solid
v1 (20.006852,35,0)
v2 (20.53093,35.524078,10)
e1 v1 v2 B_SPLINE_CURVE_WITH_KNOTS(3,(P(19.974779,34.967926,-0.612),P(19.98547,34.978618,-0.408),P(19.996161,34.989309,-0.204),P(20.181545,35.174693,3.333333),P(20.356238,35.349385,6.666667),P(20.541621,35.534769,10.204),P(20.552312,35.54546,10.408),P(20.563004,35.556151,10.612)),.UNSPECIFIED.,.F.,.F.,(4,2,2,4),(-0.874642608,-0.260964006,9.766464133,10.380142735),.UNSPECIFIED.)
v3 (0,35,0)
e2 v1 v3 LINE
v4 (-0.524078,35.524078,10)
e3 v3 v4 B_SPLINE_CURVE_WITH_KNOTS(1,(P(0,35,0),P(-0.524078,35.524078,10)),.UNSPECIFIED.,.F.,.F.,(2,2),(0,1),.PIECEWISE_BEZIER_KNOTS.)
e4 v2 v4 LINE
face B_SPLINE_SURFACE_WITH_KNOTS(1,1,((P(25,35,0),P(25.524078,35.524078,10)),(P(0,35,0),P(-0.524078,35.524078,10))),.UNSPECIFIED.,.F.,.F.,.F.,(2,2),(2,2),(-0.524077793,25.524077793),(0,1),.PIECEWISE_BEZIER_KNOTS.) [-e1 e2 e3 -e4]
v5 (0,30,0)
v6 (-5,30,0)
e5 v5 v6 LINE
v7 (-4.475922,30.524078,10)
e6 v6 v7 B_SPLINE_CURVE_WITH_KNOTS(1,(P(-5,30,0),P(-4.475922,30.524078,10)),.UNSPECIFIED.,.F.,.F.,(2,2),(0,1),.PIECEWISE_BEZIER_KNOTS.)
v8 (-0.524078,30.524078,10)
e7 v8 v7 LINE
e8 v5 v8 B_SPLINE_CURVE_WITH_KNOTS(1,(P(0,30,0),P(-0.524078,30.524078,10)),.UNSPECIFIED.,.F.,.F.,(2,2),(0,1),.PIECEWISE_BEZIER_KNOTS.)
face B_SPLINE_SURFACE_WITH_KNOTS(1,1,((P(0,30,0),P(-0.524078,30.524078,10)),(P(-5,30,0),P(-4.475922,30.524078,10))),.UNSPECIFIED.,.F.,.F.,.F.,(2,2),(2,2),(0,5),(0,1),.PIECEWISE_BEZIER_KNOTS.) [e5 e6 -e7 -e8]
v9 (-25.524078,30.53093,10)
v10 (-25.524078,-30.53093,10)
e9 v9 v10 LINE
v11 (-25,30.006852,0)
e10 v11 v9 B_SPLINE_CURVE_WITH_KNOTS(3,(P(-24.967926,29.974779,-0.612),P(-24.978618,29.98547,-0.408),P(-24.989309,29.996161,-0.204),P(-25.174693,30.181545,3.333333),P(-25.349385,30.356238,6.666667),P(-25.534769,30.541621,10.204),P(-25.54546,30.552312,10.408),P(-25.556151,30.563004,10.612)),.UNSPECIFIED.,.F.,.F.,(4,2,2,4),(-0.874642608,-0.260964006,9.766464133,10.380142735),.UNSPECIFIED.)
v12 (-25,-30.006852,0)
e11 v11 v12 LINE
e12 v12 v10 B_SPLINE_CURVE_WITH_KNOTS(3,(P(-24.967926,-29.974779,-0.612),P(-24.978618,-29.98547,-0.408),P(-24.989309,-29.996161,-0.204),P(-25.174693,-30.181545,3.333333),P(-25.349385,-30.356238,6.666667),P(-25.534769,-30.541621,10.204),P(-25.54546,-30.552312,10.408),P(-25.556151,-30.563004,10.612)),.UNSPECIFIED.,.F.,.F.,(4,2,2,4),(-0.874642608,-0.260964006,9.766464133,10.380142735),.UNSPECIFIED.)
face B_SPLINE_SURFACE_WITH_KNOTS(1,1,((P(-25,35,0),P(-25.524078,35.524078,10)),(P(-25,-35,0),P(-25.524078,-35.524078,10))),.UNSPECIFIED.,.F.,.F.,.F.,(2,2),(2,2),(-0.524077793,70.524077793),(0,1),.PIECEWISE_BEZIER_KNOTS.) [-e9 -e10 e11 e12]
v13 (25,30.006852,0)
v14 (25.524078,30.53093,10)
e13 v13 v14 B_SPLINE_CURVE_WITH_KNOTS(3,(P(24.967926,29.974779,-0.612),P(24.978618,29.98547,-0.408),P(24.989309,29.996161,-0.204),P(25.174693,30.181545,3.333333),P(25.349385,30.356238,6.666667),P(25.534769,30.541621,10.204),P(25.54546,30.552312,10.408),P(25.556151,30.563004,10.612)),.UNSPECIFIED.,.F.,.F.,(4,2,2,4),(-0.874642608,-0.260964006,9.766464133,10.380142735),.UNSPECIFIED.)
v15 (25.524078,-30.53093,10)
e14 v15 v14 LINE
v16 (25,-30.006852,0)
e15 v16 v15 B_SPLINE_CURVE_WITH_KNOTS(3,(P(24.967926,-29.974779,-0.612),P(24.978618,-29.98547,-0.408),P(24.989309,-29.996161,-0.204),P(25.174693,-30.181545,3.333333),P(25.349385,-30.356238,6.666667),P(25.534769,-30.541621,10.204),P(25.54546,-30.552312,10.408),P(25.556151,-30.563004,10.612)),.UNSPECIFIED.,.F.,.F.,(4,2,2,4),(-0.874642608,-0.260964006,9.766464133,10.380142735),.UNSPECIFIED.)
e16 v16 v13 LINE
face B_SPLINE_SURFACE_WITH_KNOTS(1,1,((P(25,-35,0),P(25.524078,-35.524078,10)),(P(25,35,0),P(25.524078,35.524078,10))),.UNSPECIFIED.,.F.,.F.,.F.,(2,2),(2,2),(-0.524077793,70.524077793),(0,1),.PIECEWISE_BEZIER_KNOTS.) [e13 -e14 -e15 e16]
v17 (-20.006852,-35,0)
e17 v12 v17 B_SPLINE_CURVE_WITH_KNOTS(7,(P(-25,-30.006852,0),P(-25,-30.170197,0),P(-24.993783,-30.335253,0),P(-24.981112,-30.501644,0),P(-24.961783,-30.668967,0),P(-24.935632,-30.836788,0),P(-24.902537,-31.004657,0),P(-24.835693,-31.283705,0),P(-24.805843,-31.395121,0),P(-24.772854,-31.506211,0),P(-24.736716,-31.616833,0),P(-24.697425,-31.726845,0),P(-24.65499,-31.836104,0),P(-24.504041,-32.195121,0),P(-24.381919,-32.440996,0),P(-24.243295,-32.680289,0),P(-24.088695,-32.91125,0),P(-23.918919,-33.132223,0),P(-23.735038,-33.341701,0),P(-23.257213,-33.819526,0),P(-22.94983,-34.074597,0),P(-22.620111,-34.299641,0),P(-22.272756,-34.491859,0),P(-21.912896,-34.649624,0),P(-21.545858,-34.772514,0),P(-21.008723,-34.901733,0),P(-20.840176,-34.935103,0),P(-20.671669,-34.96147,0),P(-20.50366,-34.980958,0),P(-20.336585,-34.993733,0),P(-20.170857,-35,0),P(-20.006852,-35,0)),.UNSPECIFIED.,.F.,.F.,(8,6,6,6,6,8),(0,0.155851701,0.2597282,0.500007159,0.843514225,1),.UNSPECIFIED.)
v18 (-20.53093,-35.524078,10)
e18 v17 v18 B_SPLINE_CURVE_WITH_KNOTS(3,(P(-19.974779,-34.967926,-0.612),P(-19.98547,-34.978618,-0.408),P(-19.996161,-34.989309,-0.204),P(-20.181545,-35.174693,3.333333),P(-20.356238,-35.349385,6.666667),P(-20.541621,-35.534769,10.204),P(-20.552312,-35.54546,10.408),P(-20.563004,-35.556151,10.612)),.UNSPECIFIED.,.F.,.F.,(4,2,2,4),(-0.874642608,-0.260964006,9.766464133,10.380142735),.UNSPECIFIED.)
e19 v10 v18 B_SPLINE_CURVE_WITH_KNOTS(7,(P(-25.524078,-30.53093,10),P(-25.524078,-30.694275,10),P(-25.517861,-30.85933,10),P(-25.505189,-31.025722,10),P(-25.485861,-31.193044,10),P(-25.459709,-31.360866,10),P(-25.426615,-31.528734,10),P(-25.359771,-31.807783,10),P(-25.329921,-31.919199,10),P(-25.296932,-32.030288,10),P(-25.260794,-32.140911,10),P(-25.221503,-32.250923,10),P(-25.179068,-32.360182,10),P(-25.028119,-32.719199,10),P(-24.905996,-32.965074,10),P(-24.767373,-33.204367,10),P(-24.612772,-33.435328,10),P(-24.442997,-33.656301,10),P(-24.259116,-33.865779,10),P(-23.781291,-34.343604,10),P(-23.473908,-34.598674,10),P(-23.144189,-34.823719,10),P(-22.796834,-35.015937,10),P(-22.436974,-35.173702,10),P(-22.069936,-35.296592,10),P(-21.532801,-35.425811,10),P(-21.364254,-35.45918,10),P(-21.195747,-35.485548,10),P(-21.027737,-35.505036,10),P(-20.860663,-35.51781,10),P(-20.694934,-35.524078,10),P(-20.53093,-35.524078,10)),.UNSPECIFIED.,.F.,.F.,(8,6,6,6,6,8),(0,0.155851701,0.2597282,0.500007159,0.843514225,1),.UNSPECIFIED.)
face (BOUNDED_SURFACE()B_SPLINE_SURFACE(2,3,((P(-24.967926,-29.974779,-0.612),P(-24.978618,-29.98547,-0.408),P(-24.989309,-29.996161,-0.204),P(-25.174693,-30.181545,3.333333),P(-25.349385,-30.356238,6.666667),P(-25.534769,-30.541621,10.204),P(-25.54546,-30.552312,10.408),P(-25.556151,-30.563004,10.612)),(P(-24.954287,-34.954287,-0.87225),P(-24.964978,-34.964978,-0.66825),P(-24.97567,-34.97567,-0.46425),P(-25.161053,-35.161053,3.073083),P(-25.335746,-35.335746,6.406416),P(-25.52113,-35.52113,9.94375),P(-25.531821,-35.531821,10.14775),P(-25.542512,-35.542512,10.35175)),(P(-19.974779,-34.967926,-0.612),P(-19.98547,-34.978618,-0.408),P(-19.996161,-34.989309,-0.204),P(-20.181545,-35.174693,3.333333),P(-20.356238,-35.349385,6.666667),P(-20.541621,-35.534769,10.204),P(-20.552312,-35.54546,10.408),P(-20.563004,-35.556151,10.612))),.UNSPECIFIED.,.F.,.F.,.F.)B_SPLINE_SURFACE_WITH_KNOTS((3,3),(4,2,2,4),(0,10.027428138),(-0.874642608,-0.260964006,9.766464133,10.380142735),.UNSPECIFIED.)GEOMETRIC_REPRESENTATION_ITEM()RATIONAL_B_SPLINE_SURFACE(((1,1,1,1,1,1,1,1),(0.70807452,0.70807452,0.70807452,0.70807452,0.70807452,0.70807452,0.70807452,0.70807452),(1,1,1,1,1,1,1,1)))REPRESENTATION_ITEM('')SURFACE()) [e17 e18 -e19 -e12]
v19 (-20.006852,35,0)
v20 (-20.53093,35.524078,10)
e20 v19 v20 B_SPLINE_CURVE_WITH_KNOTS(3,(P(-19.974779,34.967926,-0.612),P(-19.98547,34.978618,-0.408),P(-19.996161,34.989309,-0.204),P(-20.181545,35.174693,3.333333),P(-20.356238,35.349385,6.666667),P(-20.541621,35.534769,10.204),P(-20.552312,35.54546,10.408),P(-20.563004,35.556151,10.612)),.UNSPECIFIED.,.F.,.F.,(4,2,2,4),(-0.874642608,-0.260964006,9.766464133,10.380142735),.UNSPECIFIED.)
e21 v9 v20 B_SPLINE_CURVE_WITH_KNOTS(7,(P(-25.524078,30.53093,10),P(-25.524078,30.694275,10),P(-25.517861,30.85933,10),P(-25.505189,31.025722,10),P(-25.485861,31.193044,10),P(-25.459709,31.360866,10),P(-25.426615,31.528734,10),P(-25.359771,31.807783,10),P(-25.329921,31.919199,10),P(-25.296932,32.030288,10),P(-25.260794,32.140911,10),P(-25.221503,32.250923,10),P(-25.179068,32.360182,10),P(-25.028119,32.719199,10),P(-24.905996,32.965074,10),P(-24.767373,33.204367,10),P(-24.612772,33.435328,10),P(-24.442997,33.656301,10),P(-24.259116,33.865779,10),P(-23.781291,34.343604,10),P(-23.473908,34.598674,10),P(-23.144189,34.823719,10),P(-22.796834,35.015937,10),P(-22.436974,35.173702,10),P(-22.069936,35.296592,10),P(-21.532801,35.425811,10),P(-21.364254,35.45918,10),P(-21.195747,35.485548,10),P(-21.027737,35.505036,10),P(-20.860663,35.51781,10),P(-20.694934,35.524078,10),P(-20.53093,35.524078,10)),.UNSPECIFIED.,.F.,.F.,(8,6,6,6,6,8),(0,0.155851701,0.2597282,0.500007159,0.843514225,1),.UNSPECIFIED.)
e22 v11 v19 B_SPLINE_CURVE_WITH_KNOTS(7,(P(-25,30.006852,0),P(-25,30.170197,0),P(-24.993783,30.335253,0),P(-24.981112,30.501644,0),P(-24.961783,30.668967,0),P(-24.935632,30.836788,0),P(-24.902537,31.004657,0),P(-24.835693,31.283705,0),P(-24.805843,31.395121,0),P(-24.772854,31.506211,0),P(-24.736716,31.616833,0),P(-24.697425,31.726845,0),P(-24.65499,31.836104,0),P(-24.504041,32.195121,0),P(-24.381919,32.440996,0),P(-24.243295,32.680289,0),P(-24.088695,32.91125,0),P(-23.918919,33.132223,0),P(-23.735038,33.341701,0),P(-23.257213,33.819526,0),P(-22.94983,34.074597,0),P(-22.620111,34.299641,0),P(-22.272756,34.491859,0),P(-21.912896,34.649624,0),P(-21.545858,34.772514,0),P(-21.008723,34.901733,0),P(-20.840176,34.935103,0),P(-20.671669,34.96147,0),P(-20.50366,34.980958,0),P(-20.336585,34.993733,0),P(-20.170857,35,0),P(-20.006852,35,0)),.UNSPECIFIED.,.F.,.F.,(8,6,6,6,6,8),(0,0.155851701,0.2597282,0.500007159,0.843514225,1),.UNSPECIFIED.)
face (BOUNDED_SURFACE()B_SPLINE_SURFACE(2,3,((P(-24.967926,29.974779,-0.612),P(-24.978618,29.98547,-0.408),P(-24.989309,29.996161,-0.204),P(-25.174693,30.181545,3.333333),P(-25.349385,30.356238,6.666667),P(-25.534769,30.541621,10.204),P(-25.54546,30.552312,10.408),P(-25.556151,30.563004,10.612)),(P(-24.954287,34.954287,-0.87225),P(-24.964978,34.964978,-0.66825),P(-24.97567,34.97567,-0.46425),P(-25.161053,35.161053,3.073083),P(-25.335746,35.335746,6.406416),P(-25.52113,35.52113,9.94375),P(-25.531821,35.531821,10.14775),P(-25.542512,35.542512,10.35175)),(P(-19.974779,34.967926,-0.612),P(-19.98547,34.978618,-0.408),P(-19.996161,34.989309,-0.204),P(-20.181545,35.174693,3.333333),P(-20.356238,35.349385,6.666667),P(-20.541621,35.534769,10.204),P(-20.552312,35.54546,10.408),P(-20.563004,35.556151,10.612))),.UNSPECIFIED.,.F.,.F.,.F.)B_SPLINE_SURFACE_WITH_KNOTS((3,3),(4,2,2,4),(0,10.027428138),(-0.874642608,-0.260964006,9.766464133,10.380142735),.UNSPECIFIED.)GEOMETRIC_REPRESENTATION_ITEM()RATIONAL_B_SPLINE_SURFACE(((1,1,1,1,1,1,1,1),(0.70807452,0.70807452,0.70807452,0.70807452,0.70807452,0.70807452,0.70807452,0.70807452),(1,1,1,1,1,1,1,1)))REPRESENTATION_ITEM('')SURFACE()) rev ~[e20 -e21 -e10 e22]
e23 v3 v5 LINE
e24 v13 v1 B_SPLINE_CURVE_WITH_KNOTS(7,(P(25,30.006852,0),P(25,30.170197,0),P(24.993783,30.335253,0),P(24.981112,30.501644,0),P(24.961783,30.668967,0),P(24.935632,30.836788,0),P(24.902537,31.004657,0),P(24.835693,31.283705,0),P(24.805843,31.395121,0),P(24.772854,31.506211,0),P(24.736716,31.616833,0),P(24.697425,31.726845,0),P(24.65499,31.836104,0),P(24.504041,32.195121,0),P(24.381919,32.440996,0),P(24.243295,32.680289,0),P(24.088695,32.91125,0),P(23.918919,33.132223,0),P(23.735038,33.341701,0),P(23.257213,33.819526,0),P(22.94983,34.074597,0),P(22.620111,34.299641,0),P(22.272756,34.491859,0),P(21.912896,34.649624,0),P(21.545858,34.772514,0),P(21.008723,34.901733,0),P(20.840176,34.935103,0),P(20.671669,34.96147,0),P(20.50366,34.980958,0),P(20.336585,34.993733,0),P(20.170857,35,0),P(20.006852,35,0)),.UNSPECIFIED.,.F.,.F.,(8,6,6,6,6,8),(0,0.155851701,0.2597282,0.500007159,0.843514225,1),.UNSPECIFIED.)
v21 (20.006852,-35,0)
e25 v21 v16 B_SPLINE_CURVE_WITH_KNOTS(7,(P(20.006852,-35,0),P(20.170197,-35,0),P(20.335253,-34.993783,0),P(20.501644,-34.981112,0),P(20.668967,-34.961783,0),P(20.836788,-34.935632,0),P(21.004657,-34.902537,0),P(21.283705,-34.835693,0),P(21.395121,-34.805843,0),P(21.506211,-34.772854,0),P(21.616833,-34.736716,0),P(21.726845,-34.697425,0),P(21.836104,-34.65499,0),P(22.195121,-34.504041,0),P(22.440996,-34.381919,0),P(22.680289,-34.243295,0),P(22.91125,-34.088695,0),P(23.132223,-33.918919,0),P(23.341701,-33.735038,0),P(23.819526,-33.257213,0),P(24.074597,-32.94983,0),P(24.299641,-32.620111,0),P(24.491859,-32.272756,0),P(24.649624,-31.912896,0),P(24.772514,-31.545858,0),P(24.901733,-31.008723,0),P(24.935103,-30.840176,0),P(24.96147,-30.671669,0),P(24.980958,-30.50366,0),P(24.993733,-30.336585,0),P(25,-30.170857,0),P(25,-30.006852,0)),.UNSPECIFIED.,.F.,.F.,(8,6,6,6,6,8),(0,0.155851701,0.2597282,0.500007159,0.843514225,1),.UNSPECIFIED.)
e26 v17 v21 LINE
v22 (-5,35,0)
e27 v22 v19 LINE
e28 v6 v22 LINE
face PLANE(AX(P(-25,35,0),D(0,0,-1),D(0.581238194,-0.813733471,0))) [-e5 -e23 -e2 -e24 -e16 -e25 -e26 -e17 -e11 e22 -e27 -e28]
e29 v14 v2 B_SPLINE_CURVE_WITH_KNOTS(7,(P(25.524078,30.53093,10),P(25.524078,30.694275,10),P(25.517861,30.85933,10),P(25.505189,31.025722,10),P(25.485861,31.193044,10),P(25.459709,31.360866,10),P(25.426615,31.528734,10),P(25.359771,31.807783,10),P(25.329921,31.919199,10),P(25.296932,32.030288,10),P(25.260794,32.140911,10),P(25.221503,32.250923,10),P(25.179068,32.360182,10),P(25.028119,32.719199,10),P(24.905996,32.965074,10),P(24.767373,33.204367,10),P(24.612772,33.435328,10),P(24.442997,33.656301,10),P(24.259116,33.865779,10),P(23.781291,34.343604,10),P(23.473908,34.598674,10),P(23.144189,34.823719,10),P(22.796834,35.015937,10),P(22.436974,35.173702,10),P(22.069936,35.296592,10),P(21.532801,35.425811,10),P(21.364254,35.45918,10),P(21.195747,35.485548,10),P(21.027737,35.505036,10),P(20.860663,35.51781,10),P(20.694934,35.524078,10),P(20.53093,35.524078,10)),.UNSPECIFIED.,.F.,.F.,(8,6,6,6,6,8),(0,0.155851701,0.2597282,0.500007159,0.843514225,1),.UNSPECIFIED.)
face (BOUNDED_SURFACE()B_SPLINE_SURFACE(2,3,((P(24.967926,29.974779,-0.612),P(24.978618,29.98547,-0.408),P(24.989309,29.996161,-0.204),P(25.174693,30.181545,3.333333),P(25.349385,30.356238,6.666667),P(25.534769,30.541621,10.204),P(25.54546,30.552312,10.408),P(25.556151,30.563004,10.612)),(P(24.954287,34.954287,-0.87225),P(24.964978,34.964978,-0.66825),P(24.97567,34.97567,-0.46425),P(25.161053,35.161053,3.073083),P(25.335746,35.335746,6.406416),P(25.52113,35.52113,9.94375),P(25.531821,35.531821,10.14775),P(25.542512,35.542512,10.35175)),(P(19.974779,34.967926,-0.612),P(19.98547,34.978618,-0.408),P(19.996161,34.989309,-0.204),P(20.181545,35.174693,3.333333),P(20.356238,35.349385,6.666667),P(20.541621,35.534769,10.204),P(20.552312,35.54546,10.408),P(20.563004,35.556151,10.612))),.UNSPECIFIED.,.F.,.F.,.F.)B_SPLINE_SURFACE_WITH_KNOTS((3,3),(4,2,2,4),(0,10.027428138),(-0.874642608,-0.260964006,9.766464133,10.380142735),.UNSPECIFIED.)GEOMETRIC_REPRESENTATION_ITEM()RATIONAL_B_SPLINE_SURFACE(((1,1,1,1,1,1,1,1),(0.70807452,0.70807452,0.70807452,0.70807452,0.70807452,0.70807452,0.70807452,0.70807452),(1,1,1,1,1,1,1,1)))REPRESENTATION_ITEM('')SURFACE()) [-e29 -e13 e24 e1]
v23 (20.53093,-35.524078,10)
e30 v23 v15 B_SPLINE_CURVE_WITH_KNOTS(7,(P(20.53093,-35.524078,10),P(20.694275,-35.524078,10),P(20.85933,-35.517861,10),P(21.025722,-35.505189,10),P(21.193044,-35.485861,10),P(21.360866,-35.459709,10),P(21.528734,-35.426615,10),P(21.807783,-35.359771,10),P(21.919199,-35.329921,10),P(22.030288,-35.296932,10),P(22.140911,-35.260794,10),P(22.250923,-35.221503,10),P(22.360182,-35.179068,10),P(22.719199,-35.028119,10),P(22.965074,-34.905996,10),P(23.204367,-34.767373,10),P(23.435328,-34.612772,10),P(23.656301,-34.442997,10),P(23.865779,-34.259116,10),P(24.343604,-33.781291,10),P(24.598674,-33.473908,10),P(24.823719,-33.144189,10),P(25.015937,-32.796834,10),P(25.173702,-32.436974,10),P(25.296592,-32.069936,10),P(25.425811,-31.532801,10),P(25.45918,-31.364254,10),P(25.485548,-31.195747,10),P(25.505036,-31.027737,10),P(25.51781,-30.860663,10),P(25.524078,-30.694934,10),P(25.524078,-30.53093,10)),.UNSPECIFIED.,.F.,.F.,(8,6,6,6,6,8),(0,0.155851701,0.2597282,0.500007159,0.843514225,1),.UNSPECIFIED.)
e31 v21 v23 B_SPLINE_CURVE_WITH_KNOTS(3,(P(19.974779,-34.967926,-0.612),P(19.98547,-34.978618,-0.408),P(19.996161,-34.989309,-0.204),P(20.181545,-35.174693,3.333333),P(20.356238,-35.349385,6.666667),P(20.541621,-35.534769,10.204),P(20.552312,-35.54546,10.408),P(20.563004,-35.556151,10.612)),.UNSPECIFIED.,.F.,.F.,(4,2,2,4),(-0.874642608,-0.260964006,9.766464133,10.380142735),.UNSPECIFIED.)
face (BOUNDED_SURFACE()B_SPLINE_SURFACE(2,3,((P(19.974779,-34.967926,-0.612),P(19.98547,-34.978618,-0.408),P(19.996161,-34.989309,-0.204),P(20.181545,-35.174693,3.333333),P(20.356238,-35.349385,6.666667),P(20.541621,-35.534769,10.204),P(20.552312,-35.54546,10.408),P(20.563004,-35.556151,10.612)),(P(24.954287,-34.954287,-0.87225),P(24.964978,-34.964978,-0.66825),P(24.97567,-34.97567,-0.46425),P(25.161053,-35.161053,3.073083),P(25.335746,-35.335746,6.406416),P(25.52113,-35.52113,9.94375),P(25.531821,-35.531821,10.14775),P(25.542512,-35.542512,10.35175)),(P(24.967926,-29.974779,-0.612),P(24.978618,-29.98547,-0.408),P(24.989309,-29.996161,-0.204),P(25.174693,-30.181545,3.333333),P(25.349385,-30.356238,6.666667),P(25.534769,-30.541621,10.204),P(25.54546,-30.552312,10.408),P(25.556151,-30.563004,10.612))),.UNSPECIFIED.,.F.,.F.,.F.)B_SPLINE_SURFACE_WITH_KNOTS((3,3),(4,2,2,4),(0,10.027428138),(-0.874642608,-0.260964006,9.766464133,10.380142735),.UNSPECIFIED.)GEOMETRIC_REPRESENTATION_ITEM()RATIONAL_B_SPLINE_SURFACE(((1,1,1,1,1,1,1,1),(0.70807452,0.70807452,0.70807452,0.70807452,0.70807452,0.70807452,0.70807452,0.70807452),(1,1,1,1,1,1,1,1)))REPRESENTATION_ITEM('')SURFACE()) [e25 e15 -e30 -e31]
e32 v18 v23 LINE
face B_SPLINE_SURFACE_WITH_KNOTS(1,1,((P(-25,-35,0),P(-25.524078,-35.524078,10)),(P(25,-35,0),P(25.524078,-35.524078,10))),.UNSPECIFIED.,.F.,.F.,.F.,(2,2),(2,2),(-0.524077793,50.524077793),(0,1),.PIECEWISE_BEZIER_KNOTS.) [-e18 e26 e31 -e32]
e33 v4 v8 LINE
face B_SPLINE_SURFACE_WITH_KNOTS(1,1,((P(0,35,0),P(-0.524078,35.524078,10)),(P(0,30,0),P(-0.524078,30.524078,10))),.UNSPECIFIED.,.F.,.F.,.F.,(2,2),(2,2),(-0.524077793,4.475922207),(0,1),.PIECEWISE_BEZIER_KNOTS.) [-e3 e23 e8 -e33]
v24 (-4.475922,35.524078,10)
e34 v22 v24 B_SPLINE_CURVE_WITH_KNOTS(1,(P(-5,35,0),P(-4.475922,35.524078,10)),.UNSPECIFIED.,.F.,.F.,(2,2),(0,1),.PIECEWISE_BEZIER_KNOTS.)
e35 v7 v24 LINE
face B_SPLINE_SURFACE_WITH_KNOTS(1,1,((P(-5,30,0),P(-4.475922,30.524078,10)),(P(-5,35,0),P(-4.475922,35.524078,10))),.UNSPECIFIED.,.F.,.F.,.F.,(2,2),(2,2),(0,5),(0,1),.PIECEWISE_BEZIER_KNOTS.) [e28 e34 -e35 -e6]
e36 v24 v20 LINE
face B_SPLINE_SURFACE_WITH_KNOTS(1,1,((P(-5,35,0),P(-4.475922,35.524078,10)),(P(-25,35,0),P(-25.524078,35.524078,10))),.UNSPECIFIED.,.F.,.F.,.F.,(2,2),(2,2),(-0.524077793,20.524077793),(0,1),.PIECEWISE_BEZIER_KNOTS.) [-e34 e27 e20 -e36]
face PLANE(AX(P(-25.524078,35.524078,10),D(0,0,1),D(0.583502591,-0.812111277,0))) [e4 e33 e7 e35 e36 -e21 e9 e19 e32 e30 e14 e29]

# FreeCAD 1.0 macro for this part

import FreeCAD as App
import Part
import Sketcher


def edges_at(feature, points):
    """Names of the edges that pass closest to the given points."""
    edges = feature.Shape.Edges
    near = lambda p: min(range(len(edges)), key=lambda i: edges[i].distToShape(Part.Vertex(*p))[0])
    return sorted({f"Edge{near(p) + 1}" for p in points})


def add_polygon(sketch, points):
    """Adds a closed chain of lines whose ends are joined by coincident constraints."""
    first, n = sketch.GeometryCount, len(points)
    for a, b in zip(points, points[1:] + points[:1]):
        sketch.addGeometry(Part.LineSegment(App.Vector(*a, 0), App.Vector(*b, 0)), False)
    for i in range(n):
        sketch.addConstraint(Sketcher.Constraint("Coincident", first + i, 2, first + (i + 1) % n, 1))

doc = App.newDocument("Part")
body = doc.addObject("PartDesign::Body", "Body")

# Sketch on XY plane
sketch1 = body.newObject("Sketcher::SketchObject", "Sketch")
sketch1.AttachmentSupport = (doc.getObject("XY_Plane"), [""])
sketch1.MapMode = "FlatFace"
add_polygon(sketch1, [(-25, 35), (-25, -35), (25, -35), (25, 35), (0, 35), (0, 30), (-5, 30), (-5, 35)])  # lines 0-7
sketch1.addConstraint([
    Sketcher.Constraint("Vertical", 0),
    Sketcher.Constraint("Horizontal", 1),
    Sketcher.Constraint("Vertical", 2),
    Sketcher.Constraint("Horizontal", 3),
    Sketcher.Constraint("Vertical", 4),
    Sketcher.Constraint("Horizontal", 5),
    Sketcher.Constraint("Vertical", 6),
    Sketcher.Constraint("Horizontal", 7),
    Sketcher.Constraint("Symmetric", 0, 2, 2, 2, -1, 1),
    Sketcher.Constraint("PointOnObject", 3, 2, -2),
    Sketcher.Constraint("Horizontal", 3, 2, 6, 2),
    Sketcher.Constraint("Equal", 5, 4),
    Sketcher.Constraint("DistanceX", 1, 1, 1, 2, 50.0),
    Sketcher.Constraint("DistanceX", 5, 2, 5, 1, 5.0),
    Sketcher.Constraint("DistanceY", 0, 2, 0, 1, 70.0),
])
pad1 = body.newObject("PartDesign::Pad", "Pad")
pad1.Profile = sketch1
pad1.Length = 10
pad1.TaperAngle = 3
doc.recompute()

fillet = body.newObject("PartDesign::Fillet", "Fillet")
fillet.Base = (pad1, edges_at(pad1, [
    (25.262, -35.262, 5),
    (25.262, 35.262, 5),
    (-25.262, -35.262, 5),
    (-25.262, 35.262, 5),
]))
fillet.Radius = 5

doc.recompute()
